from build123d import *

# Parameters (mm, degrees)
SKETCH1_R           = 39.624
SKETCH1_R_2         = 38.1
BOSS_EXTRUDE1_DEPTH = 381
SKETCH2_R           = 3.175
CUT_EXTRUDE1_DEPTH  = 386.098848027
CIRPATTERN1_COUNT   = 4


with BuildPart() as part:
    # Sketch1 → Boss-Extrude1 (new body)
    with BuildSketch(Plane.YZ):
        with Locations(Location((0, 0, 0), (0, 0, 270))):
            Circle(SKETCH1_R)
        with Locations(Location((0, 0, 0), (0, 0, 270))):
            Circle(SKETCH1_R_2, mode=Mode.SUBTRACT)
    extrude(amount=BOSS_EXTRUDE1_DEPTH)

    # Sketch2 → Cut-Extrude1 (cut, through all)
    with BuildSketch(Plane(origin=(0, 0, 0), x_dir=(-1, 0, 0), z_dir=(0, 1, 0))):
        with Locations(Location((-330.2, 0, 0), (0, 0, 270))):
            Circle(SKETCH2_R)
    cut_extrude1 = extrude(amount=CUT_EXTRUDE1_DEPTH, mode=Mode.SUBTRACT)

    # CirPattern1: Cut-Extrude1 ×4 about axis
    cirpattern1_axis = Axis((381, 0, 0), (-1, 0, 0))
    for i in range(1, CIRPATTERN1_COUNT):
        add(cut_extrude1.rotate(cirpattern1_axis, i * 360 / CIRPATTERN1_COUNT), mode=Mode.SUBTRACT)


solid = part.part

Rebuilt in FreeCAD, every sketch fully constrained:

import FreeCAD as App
import Part
import Sketcher
Q = App.Units.Quantity

doc = App.newDocument("Part")
body = doc.addObject("PartDesign::Body", "Body")

# Sketch on YZ plane
sketch1 = doc.addObject("Sketcher::SketchObject", "Sketch")
body.addObject(sketch1)
sketch1.AttachmentSupport = (doc.YZ_Plane, [""])
sketch1.MapMode = "FlatFace"
sketch1.addGeometry([
    Part.Circle(App.Vector(0, 0, 0), App.Vector(0, 0, 1), 40),
    Part.Circle(App.Vector(0, 0, 0), App.Vector(0, 0, 1), 38),
], False)
sketch1.addConstraint([
    Sketcher.Constraint("Coincident", 0, 3, -1, 1),
    Sketcher.Constraint("Coincident", 1, 3, -1, 1),
    Sketcher.Constraint("Diameter", 1, Q("3 in")),
    Sketcher.Constraint("Diameter", 0, Q("3.12 in")),
])
pad1 = doc.addObject("PartDesign::Pad", "Pad")
body.addObject(pad1)
pad1.Profile = sketch1
pad1.Length = Q("15 in")

# Sketch on XZ plane
sketch2 = doc.addObject("Sketcher::SketchObject", "Sketch001")
body.addObject(sketch2)
sketch2.AttachmentSupport = (doc.XZ_Plane, [""])
sketch2.MapMode = "FlatFace"
sketch2.addGeometry(Part.Circle(App.Vector(330.2, 0, 0), App.Vector(0, 0, 1), 3.2), False)
sketch2.addConstraint([
    Sketcher.Constraint("PointOnObject", 0, 3, -1),
    Sketcher.Constraint("Diameter", 0, Q("0.25 in")),
    Sketcher.Constraint("DistanceX", -1, 1, 0, 3, Q("13 in")),
])
pocket1 = doc.addObject("PartDesign::Pocket", "Pocket")
body.addObject(pocket1)
pocket1.Profile = sketch2
pocket1.Type = "ThroughAll"
doc.recompute()

polarpattern = doc.addObject("PartDesign::PolarPattern", "PolarPattern")
body.addObject(polarpattern)
polarpattern.Originals = [pocket1]
polarpattern.Axis = (doc.X_Axis, [""])
polarpattern.Angle = 360
polarpattern.Occurrences = 4
body.Tip = polarpattern

doc.recompute()
